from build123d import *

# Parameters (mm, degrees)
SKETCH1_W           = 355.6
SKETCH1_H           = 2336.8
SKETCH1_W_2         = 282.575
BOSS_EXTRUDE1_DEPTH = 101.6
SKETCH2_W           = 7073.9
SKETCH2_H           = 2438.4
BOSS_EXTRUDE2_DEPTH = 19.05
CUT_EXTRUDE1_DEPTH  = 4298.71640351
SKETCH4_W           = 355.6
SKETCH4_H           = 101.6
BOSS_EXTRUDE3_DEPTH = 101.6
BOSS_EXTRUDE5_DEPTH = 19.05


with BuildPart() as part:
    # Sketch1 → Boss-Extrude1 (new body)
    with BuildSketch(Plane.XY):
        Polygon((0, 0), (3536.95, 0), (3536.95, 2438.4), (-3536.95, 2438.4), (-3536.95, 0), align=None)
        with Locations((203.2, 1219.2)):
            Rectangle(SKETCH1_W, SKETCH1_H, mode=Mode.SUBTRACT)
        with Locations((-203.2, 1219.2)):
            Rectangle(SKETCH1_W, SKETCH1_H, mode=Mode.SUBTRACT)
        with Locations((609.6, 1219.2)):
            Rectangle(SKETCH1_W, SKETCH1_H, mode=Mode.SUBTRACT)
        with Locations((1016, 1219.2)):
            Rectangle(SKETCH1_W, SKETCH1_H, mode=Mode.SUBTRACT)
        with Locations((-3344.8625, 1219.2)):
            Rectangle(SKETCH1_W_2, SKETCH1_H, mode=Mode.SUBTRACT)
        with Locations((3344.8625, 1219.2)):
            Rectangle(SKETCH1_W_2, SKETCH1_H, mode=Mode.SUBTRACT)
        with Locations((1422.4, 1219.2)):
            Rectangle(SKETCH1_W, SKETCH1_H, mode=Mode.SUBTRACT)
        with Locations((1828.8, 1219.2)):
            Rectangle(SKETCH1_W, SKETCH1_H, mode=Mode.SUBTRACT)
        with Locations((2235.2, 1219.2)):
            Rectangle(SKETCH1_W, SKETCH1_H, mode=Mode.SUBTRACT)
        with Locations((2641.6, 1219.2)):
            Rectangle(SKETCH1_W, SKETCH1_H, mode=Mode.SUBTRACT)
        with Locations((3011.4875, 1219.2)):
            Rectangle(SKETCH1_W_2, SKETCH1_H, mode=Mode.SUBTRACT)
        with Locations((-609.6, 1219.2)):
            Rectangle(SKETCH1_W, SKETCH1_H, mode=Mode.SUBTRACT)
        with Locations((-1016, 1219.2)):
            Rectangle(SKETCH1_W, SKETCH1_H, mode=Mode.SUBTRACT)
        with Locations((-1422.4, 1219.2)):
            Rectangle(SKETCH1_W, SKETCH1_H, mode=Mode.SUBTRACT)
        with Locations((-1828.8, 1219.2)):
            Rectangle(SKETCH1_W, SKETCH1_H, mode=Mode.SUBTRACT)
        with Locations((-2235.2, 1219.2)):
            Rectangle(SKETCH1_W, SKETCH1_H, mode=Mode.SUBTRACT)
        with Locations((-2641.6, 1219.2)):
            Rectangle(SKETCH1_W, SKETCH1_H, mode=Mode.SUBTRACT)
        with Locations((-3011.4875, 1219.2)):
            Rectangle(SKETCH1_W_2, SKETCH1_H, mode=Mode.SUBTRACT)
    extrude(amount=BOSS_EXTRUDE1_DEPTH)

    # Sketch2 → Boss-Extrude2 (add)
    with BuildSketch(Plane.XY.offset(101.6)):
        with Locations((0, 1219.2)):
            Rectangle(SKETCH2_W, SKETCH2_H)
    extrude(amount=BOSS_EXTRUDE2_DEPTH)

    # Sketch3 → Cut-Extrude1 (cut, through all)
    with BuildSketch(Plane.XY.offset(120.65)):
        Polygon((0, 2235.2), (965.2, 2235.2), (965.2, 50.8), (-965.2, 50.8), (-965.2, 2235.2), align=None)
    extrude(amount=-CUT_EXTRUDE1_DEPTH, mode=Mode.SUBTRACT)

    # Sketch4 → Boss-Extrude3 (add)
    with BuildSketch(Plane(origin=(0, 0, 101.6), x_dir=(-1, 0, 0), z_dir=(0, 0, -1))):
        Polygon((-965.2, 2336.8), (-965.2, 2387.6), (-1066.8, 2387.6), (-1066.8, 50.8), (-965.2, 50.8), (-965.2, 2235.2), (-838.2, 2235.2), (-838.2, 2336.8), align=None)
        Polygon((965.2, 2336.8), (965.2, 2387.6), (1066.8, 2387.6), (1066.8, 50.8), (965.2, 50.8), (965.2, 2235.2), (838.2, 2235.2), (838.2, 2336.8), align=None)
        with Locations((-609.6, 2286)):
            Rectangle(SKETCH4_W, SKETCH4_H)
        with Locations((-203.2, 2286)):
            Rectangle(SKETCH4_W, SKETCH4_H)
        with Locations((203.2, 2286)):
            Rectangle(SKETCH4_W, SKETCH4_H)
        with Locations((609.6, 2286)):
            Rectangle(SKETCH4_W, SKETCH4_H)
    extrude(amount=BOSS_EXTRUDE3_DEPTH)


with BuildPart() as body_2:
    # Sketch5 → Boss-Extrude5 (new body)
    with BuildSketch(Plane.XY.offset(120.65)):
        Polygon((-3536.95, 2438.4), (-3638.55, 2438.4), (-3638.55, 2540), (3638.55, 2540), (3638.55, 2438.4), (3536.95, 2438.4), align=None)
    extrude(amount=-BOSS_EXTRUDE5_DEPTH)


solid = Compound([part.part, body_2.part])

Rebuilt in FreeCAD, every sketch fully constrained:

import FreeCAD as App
import Part
import Sketcher
Q = App.Units.Quantity


def add_polygon(sketch, points):
    """Adds a closed chain of lines whose ends are joined by coincident constraints."""
    first, n = sketch.GeometryCount, len(points)
    for a, b in zip(points, points[1:] + points[:1]):
        sketch.addGeometry(Part.LineSegment(App.Vector(*a, 0), App.Vector(*b, 0)), False)
    for i in range(n):
        sketch.addConstraint(Sketcher.Constraint("Coincident", first + i, 2, first + (i + 1) % n, 1))

doc = App.newDocument("Part")
body = doc.addObject("PartDesign::Body", "Body")

# Sketch on XY plane
sketch1 = body.newObject("Sketcher::SketchObject", "Sketch")
sketch1.AttachmentSupport = (doc.getObject("XY_Plane"), [""])
sketch1.MapMode = "FlatFace"
add_polygon(sketch1, [(3537, 0), (3537, 2438), (-3537, 2438), (-3537, 0)])  # lines 0-3
add_polygon(sketch1, [(-3204, 51), (-3486, 51), (-3486, 2388), (-3204, 2388)])  # lines 4-7
add_polygon(sketch1, [(-2870, 51), (-3153, 51), (-3153, 2388), (-2870, 2388)])  # lines 8-11
add_polygon(sketch1, [(-2464, 51), (-2819, 51), (-2819, 2388), (-2464, 2388)])  # lines 12-15
add_polygon(sketch1, [(-2057, 51), (-2413, 51), (-2413, 2388), (-2057, 2388)])  # lines 16-19
add_polygon(sketch1, [(-1651, 51), (-2007, 51), (-2007, 2388), (-1651, 2388)])  # lines 20-23
add_polygon(sketch1, [(-1245, 51), (-1600, 51), (-1600, 2388), (-1245, 2388)])  # lines 24-27
add_polygon(sketch1, [(-838, 51), (-1194, 51), (-1194, 2388), (-838, 2388)])  # lines 28-31
add_polygon(sketch1, [(-432, 51), (-787, 51), (-787, 2388), (-432, 2388)])  # lines 32-35
add_polygon(sketch1, [(-25, 51), (-381, 51), (-381, 2388), (-25, 2388)])  # lines 36-39
add_polygon(sketch1, [(381, 51), (25, 51), (25, 2388), (381, 2388)])  # lines 40-43
add_polygon(sketch1, [(787, 51), (432, 51), (432, 2388), (787, 2388)])  # lines 44-47
add_polygon(sketch1, [(1194, 51), (838, 51), (838, 2388), (1194, 2388)])  # lines 48-51
add_polygon(sketch1, [(1600, 51), (1245, 51), (1245, 2388), (1600, 2388)])  # lines 52-55
add_polygon(sketch1, [(2007, 51), (1651, 51), (1651, 2388), (2007, 2388)])  # lines 56-59
add_polygon(sketch1, [(2413, 51), (2057, 51), (2057, 2388), (2413, 2388)])  # lines 60-63
add_polygon(sketch1, [(2819, 51), (2464, 51), (2464, 2388), (2819, 2388)])  # lines 64-67
add_polygon(sketch1, [(3153, 51), (2870, 51), (2870, 2388), (3153, 2388)])  # lines 68-71
add_polygon(sketch1, [(3486, 51), (3204, 51), (3204, 2388), (3486, 2388)])  # lines 72-75
sketch1.addConstraint([
    Sketcher.Constraint("Vertical", 0),
    Sketcher.Constraint("Horizontal", 1),
    Sketcher.Constraint("Vertical", 2),
    Sketcher.Constraint("Horizontal", 3),
    Sketcher.Constraint("Horizontal", 4),
    Sketcher.Constraint("Vertical", 5),
    Sketcher.Constraint("Horizontal", 6),
    Sketcher.Constraint("Vertical", 7),
    Sketcher.Constraint("Horizontal", 8),
    Sketcher.Constraint("Vertical", 9),
    Sketcher.Constraint("Horizontal", 10),
    Sketcher.Constraint("Vertical", 11),
    Sketcher.Constraint("Horizontal", 12),
    Sketcher.Constraint("Vertical", 13),
    Sketcher.Constraint("Horizontal", 14),
    Sketcher.Constraint("Vertical", 15),
    Sketcher.Constraint("Horizontal", 16),
    Sketcher.Constraint("Vertical", 17),
    Sketcher.Constraint("Horizontal", 18),
    Sketcher.Constraint("Vertical", 19),
    Sketcher.Constraint("Horizontal", 20),
    Sketcher.Constraint("Vertical", 21),
    Sketcher.Constraint("Horizontal", 22),
    Sketcher.Constraint("Vertical", 23),
    Sketcher.Constraint("Horizontal", 24),
    Sketcher.Constraint("Vertical", 25),
    Sketcher.Constraint("Horizontal", 26),
    Sketcher.Constraint("Vertical", 27),
    Sketcher.Constraint("Horizontal", 28),
    Sketcher.Constraint("Vertical", 29),
    Sketcher.Constraint("Horizontal", 30),
    Sketcher.Constraint("Vertical", 31),
    Sketcher.Constraint("Horizontal", 32),
    Sketcher.Constraint("Vertical", 33),
    Sketcher.Constraint("Horizontal", 34),
    Sketcher.Constraint("Vertical", 35),
    Sketcher.Constraint("Horizontal", 36),
    Sketcher.Constraint("Vertical", 37),
    Sketcher.Constraint("Horizontal", 38),
    Sketcher.Constraint("Vertical", 39),
    Sketcher.Constraint("Horizontal", 40),
    Sketcher.Constraint("Vertical", 41),
    Sketcher.Constraint("Horizontal", 42),
    Sketcher.Constraint("Vertical", 43),
    Sketcher.Constraint("Horizontal", 44),
    Sketcher.Constraint("Vertical", 45),
    Sketcher.Constraint("Horizontal", 46),
    Sketcher.Constraint("Vertical", 47),
    Sketcher.Constraint("Horizontal", 48),
    Sketcher.Constraint("Vertical", 49),
    Sketcher.Constraint("Horizontal", 50),
    Sketcher.Constraint("Vertical", 51),
    Sketcher.Constraint("Horizontal", 52),
    Sketcher.Constraint("Vertical", 53),
    Sketcher.Constraint("Horizontal", 54),
    Sketcher.Constraint("Vertical", 55),
    Sketcher.Constraint("Horizontal", 56),
    Sketcher.Constraint("Vertical", 57),
    Sketcher.Constraint("Horizontal", 58),
    Sketcher.Constraint("Vertical", 59),
    Sketcher.Constraint("Horizontal", 60),
    Sketcher.Constraint("Vertical", 61),
    Sketcher.Constraint("Horizontal", 62),
    Sketcher.Constraint("Vertical", 63),
    Sketcher.Constraint("Horizontal", 64),
    Sketcher.Constraint("Vertical", 65),
    Sketcher.Constraint("Horizontal", 66),
    Sketcher.Constraint("Vertical", 67),
    Sketcher.Constraint("Horizontal", 68),
    Sketcher.Constraint("Vertical", 69),
    Sketcher.Constraint("Horizontal", 70),
    Sketcher.Constraint("Vertical", 71),
    Sketcher.Constraint("Horizontal", 72),
    Sketcher.Constraint("Vertical", 73),
    Sketcher.Constraint("Horizontal", 74),
    Sketcher.Constraint("Vertical", 75),
    Sketcher.Constraint("Symmetric", 2, 2, 3, 2, -1, 1),
    Sketcher.Constraint("Symmetric", 39, 2, 40, 2, -2),
    Sketcher.Constraint("Symmetric", 37, 2, 42, 2, -2),
    Sketcher.Constraint("Symmetric", 35, 2, 44, 2, -2),
    Sketcher.Constraint("Symmetric", 33, 2, 46, 2, -2),
    Sketcher.Constraint("Symmetric", 31, 2, 48, 2, -2),
    Sketcher.Constraint("Symmetric", 29, 2, 50, 2, -2),
    Sketcher.Constraint("Symmetric", 27, 2, 52, 2, -2),
    Sketcher.Constraint("Symmetric", 25, 2, 54, 2, -2),
    Sketcher.Constraint("Symmetric", 23, 2, 56, 2, -2),
    Sketcher.Constraint("Symmetric", 21, 2, 58, 2, -2),
    Sketcher.Constraint("Symmetric", 19, 2, 60, 2, -2),
    Sketcher.Constraint("Symmetric", 17, 2, 62, 2, -2),
    Sketcher.Constraint("Symmetric", 15, 2, 64, 2, -2),
    Sketcher.Constraint("Symmetric", 13, 2, 66, 2, -2),
    Sketcher.Constraint("Symmetric", 11, 2, 68, 2, -2),
    Sketcher.Constraint("Symmetric", 9, 2, 70, 2, -2),
    Sketcher.Constraint("Symmetric", 7, 2, 72, 2, -2),
    Sketcher.Constraint("Symmetric", 5, 2, 74, 2, -2),
    Sketcher.Constraint("Horizontal", 7, 2, 8, 2),
    Sketcher.Constraint("Horizontal", 6, 2, 9, 2),
    Sketcher.Constraint("Horizontal", 11, 2, 12, 2),
    Sketcher.Constraint("Horizontal", 10, 2, 13, 2),
    Sketcher.Constraint("Horizontal", 15, 2, 16, 2),
    Sketcher.Constraint("Horizontal", 14, 2, 17, 2),
    Sketcher.Constraint("Horizontal", 19, 2, 20, 2),
    Sketcher.Constraint("Horizontal", 18, 2, 21, 2),
    Sketcher.Constraint("Horizontal", 23, 2, 24, 2),
    Sketcher.Constraint("Horizontal", 22, 2, 25, 2),
    Sketcher.Constraint("Horizontal", 27, 2, 28, 2),
    Sketcher.Constraint("Horizontal", 26, 2, 29, 2),
    Sketcher.Constraint("Horizontal", 31, 2, 32, 2),
    Sketcher.Constraint("Horizontal", 30, 2, 33, 2),
    Sketcher.Constraint("Horizontal", 35, 2, 36, 2),
    Sketcher.Constraint("Horizontal", 34, 2, 37, 2),
    Sketcher.Constraint("Equal", 6, 8),
    Sketcher.Constraint("Equal", 14, 16),
    Sketcher.Constraint("Equal", 18, 20),
    Sketcher.Constraint("Equal", 22, 24),
    Sketcher.Constraint("Equal", 26, 28),
    Sketcher.Constraint("Equal", 30, 32),
    Sketcher.Constraint("Equal", 34, 36),
    Sketcher.Constraint("DistanceX", 12, 2, 12, 1, Q("14 in")),
    Sketcher.Constraint("DistanceY", 0, 1, 0, 2, Q("96 in")),
    Sketcher.Constraint("DistanceY", 5, 1, 5, 2, Q("92 in")),
    Sketcher.Constraint("DistanceX", 1, 2, 1, 1, Q("278.5 in")),
    Sketcher.Constraint("DistanceY", -1, 1, 4, 2, Q("2 in")),
    Sketcher.Constraint("DistanceX", 10, 2, -1, 1, Q("113 in")),
    Sketcher.Constraint("DistanceX", 12, 2, -1, 1, Q("111 in")),
    Sketcher.Constraint("DistanceX", 16, 2, -1, 1, Q("95 in")),
    Sketcher.Constraint("DistanceX", 20, 2, -1, 1, Q("79 in")),
    Sketcher.Constraint("DistanceX", 24, 2, -1, 1, Q("63 in")),
    Sketcher.Constraint("DistanceX", 28, 2, -1, 1, Q("47 in")),
    Sketcher.Constraint("DistanceX", 32, 2, -1, 1, Q("31 in")),
    Sketcher.Constraint("DistanceX", 36, 2, -1, 1, Q("15 in")),
    Sketcher.Constraint("DistanceX", 4, 2, 4, 1, Q("11.125 in")),
    Sketcher.Constraint("DistanceX", 4, 2, -1, 1, Q("137.25 in")),
])
pad1 = body.newObject("PartDesign::Pad", "Pad")
pad1.Profile = sketch1
pad1.Length = Q("4 in")

# Sketch on XY plane
sketch2 = body.newObject("Sketcher::SketchObject", "Sketch001")
sketch2.AttachmentSupport = (doc.getObject("XY_Plane"), [""])
sketch2.MapMode = "FlatFace"
sketch2.AttachmentOffset = App.Placement(App.Vector(0, 0, 4 * 25.4), App.Rotation())
add_polygon(sketch2, [(-3537, 2438), (-3537, 0), (3537, 0), (3537, 2438)])  # lines 0-3
sketch2.addConstraint([
    Sketcher.Constraint("Vertical", 0),
    Sketcher.Constraint("Horizontal", 1),
    Sketcher.Constraint("Vertical", 2),
    Sketcher.Constraint("Horizontal", 3),
    Sketcher.Constraint("Symmetric", 0, 2, 1, 2, -1, 1),
    Sketcher.Constraint("DistanceY", 0, 2, 0, 1, Q("96 in")),
    Sketcher.Constraint("DistanceX", 1, 1, 1, 2, Q("278.5 in")),
])
pad2 = body.newObject("PartDesign::Pad", "Pad001")
pad2.Profile = sketch2
pad2.Length = Q("0.75 in")

# Sketch on XY plane
sketch3 = body.newObject("Sketcher::SketchObject", "Sketch002")
sketch3.AttachmentSupport = (doc.getObject("XY_Plane"), [""])
sketch3.MapMode = "FlatFace"
sketch3.AttachmentOffset = App.Placement(App.Vector(0, 0, 4.75 * 25.4), App.Rotation())
add_polygon(sketch3, [(965, 2235), (-965, 2235), (-965, 51), (965, 51)])  # lines 0-3
sketch3.addConstraint([
    Sketcher.Constraint("Horizontal", 0),
    Sketcher.Constraint("Vertical", 1),
    Sketcher.Constraint("Horizontal", 2),
    Sketcher.Constraint("Vertical", 3),
    Sketcher.Constraint("DistanceX", 0, 2, 0, 1, Q("76 in")),
    Sketcher.Constraint("DistanceY", 1, 2, 1, 1, Q("86 in")),
    Sketcher.Constraint("DistanceX", 0, 2, -1, 1, Q("38 in")),
    Sketcher.Constraint("DistanceY", -1, 1, 0, 2, Q("88 in")),
])
pocket1 = body.newObject("PartDesign::Pocket", "Pocket")
pocket1.Profile = sketch3
pocket1.Type = "ThroughAll"

# Sketch on XY plane
sketch4 = body.newObject("Sketcher::SketchObject", "Sketch003")
sketch4.AttachmentSupport = (doc.getObject("XY_Plane"), [""])
sketch4.MapMode = "FlatFace"
sketch4.AttachmentOffset = App.Placement(App.Vector(0, 0, 4 * 25.4), App.Rotation())
add_polygon(sketch4, [(965, 2337), (965, 2388), (1067, 2388), (1067, 51), (965, 51), (965, 2235), (838, 2235), (838, 2337)])  # lines 0-7
add_polygon(sketch4, [(-965, 2388), (-965, 2337), (-838, 2337), (-838, 2235), (-965, 2235), (-965, 51), (-1067, 51), (-1067, 2388)])  # lines 8-15
add_polygon(sketch4, [(787, 2337), (787, 2235), (432, 2235), (432, 2337)])  # lines 16-19
add_polygon(sketch4, [(381, 2337), (381, 2235), (25, 2235), (25, 2337)])  # lines 20-23
add_polygon(sketch4, [(-25, 2337), (-25, 2235), (-381, 2235), (-381, 2337)])  # lines 24-27
add_polygon(sketch4, [(-432, 2337), (-432, 2235), (-787, 2235), (-787, 2337)])  # lines 28-31
sketch4.addConstraint([
    Sketcher.Constraint("Vertical", 0),
    Sketcher.Constraint("Horizontal", 1),
    Sketcher.Constraint("Vertical", 2),
    Sketcher.Constraint("Horizontal", 3),
    Sketcher.Constraint("Vertical", 4),
    Sketcher.Constraint("Horizontal", 5),
    Sketcher.Constraint("Vertical", 6),
    Sketcher.Constraint("Horizontal", 7),
    Sketcher.Constraint("Vertical", 8),
    Sketcher.Constraint("Horizontal", 9),
    Sketcher.Constraint("Vertical", 10),
    Sketcher.Constraint("Horizontal", 11),
    Sketcher.Constraint("Vertical", 12),
    Sketcher.Constraint("Horizontal", 13),
    Sketcher.Constraint("Vertical", 14),
    Sketcher.Constraint("Horizontal", 15),
    Sketcher.Constraint("Vertical", 16),
    Sketcher.Constraint("Horizontal", 17),
    Sketcher.Constraint("Vertical", 18),
    Sketcher.Constraint("Horizontal", 19),
    Sketcher.Constraint("Vertical", 20),
    Sketcher.Constraint("Horizontal", 21),
    Sketcher.Constraint("Vertical", 22),
    Sketcher.Constraint("Horizontal", 23),
    Sketcher.Constraint("Vertical", 24),
    Sketcher.Constraint("Horizontal", 25),
    Sketcher.Constraint("Vertical", 26),
    Sketcher.Constraint("Horizontal", 27),
    Sketcher.Constraint("Vertical", 28),
    Sketcher.Constraint("Horizontal", 29),
    Sketcher.Constraint("Vertical", 30),
    Sketcher.Constraint("Horizontal", 31),
    Sketcher.Constraint("Symmetric", 7, 2, 8, 2, -2),
    Sketcher.Constraint("Symmetric", 5, 2, 10, 2, -2),
    Sketcher.Constraint("Symmetric", 3, 2, 12, 2, -2),
    Sketcher.Constraint("Symmetric", 1, 2, 14, 2, -2),
    Sketcher.Constraint("Symmetric", 21, 2, 24, 2, -2),
    Sketcher.Constraint("Symmetric", 23, 2, 26, 2, -2),
    Sketcher.Constraint("Symmetric", 17, 2, 28, 2, -2),
    Sketcher.Constraint("Symmetric", 19, 2, 30, 2, -2),
    Sketcher.Constraint("Horizontal", 11, 2, 16, 2),
    Sketcher.Constraint("Horizontal", 9, 2, 18, 2),
    Sketcher.Constraint("Horizontal", 17, 2, 20, 2),
    Sketcher.Constraint("Horizontal", 19, 2, 22, 2),
    Sketcher.Constraint("Vertical", 0, 2, 3, 2),
    Sketcher.Constraint("Equal", 19, 21),
    Sketcher.Constraint("Equal", 15, 6),
    Sketcher.Constraint("DistanceX", 1, 1, 1, 2, Q("4 in")),
    Sketcher.Constraint("DistanceX", 5, 2, 5, 1, Q("5 in")),
    Sketcher.Constraint("DistanceX", 17, 2, 17, 1, Q("14 in")),
    Sketcher.Constraint("DistanceY", 0, 1, 0, 2, Q("2 in")),
    Sketcher.Constraint("DistanceY", 2, 2, 2, 1, Q("92 in")),
    Sketcher.Constraint("DistanceX", -1, 1, 0, 2, Q("38 in")),
    Sketcher.Constraint("DistanceY", -1, 1, 0, 2, Q("94 in")),
    Sketcher.Constraint("DistanceX", -1, 1, 16, 2, Q("31 in")),
    Sketcher.Constraint("DistanceX", -1, 1, 20, 2, Q("15 in")),
])
pad3 = body.newObject("PartDesign::Pad", "Pad002")
pad3.Profile = sketch4
pad3.Length = Q("4 in")
pad3.Reversed = True
body2 = doc.addObject("PartDesign::Body", "Body001")

# Sketch on XY plane
sketch5 = body2.newObject("Sketcher::SketchObject", "Sketch004")
sketch5.AttachmentSupport = (doc.getObject("XY_Plane001"), [""])
sketch5.MapMode = "FlatFace"
sketch5.AttachmentOffset = App.Placement(App.Vector(0, 0, 4.75 * 25.4), App.Rotation())
add_polygon(sketch5, [(-3639, 2438), (3639, 2438), (3639, 2540), (-3639, 2540)])  # lines 0-3
sketch5.addConstraint([
    Sketcher.Constraint("Horizontal", 0),
    Sketcher.Constraint("Vertical", 1),
    Sketcher.Constraint("Horizontal", 2),
    Sketcher.Constraint("Vertical", 3),
    Sketcher.Constraint("DistanceY", 1, 1, 1, 2, Q("4 in")),
    Sketcher.Constraint("DistanceX", 0, 1, 0, 2, Q("286.5 in")),
    Sketcher.Constraint("DistanceY", -1, 1, 0, 2, Q("96 in")),
    Sketcher.Constraint("DistanceX", -1, 1, 0, 2, Q("143.25 in")),
])
pad4 = body2.newObject("PartDesign::Pad", "Pad003")
pad4.Profile = sketch5
pad4.Length = Q("0.75 in")
pad4.Reversed = True

doc.recompute()
